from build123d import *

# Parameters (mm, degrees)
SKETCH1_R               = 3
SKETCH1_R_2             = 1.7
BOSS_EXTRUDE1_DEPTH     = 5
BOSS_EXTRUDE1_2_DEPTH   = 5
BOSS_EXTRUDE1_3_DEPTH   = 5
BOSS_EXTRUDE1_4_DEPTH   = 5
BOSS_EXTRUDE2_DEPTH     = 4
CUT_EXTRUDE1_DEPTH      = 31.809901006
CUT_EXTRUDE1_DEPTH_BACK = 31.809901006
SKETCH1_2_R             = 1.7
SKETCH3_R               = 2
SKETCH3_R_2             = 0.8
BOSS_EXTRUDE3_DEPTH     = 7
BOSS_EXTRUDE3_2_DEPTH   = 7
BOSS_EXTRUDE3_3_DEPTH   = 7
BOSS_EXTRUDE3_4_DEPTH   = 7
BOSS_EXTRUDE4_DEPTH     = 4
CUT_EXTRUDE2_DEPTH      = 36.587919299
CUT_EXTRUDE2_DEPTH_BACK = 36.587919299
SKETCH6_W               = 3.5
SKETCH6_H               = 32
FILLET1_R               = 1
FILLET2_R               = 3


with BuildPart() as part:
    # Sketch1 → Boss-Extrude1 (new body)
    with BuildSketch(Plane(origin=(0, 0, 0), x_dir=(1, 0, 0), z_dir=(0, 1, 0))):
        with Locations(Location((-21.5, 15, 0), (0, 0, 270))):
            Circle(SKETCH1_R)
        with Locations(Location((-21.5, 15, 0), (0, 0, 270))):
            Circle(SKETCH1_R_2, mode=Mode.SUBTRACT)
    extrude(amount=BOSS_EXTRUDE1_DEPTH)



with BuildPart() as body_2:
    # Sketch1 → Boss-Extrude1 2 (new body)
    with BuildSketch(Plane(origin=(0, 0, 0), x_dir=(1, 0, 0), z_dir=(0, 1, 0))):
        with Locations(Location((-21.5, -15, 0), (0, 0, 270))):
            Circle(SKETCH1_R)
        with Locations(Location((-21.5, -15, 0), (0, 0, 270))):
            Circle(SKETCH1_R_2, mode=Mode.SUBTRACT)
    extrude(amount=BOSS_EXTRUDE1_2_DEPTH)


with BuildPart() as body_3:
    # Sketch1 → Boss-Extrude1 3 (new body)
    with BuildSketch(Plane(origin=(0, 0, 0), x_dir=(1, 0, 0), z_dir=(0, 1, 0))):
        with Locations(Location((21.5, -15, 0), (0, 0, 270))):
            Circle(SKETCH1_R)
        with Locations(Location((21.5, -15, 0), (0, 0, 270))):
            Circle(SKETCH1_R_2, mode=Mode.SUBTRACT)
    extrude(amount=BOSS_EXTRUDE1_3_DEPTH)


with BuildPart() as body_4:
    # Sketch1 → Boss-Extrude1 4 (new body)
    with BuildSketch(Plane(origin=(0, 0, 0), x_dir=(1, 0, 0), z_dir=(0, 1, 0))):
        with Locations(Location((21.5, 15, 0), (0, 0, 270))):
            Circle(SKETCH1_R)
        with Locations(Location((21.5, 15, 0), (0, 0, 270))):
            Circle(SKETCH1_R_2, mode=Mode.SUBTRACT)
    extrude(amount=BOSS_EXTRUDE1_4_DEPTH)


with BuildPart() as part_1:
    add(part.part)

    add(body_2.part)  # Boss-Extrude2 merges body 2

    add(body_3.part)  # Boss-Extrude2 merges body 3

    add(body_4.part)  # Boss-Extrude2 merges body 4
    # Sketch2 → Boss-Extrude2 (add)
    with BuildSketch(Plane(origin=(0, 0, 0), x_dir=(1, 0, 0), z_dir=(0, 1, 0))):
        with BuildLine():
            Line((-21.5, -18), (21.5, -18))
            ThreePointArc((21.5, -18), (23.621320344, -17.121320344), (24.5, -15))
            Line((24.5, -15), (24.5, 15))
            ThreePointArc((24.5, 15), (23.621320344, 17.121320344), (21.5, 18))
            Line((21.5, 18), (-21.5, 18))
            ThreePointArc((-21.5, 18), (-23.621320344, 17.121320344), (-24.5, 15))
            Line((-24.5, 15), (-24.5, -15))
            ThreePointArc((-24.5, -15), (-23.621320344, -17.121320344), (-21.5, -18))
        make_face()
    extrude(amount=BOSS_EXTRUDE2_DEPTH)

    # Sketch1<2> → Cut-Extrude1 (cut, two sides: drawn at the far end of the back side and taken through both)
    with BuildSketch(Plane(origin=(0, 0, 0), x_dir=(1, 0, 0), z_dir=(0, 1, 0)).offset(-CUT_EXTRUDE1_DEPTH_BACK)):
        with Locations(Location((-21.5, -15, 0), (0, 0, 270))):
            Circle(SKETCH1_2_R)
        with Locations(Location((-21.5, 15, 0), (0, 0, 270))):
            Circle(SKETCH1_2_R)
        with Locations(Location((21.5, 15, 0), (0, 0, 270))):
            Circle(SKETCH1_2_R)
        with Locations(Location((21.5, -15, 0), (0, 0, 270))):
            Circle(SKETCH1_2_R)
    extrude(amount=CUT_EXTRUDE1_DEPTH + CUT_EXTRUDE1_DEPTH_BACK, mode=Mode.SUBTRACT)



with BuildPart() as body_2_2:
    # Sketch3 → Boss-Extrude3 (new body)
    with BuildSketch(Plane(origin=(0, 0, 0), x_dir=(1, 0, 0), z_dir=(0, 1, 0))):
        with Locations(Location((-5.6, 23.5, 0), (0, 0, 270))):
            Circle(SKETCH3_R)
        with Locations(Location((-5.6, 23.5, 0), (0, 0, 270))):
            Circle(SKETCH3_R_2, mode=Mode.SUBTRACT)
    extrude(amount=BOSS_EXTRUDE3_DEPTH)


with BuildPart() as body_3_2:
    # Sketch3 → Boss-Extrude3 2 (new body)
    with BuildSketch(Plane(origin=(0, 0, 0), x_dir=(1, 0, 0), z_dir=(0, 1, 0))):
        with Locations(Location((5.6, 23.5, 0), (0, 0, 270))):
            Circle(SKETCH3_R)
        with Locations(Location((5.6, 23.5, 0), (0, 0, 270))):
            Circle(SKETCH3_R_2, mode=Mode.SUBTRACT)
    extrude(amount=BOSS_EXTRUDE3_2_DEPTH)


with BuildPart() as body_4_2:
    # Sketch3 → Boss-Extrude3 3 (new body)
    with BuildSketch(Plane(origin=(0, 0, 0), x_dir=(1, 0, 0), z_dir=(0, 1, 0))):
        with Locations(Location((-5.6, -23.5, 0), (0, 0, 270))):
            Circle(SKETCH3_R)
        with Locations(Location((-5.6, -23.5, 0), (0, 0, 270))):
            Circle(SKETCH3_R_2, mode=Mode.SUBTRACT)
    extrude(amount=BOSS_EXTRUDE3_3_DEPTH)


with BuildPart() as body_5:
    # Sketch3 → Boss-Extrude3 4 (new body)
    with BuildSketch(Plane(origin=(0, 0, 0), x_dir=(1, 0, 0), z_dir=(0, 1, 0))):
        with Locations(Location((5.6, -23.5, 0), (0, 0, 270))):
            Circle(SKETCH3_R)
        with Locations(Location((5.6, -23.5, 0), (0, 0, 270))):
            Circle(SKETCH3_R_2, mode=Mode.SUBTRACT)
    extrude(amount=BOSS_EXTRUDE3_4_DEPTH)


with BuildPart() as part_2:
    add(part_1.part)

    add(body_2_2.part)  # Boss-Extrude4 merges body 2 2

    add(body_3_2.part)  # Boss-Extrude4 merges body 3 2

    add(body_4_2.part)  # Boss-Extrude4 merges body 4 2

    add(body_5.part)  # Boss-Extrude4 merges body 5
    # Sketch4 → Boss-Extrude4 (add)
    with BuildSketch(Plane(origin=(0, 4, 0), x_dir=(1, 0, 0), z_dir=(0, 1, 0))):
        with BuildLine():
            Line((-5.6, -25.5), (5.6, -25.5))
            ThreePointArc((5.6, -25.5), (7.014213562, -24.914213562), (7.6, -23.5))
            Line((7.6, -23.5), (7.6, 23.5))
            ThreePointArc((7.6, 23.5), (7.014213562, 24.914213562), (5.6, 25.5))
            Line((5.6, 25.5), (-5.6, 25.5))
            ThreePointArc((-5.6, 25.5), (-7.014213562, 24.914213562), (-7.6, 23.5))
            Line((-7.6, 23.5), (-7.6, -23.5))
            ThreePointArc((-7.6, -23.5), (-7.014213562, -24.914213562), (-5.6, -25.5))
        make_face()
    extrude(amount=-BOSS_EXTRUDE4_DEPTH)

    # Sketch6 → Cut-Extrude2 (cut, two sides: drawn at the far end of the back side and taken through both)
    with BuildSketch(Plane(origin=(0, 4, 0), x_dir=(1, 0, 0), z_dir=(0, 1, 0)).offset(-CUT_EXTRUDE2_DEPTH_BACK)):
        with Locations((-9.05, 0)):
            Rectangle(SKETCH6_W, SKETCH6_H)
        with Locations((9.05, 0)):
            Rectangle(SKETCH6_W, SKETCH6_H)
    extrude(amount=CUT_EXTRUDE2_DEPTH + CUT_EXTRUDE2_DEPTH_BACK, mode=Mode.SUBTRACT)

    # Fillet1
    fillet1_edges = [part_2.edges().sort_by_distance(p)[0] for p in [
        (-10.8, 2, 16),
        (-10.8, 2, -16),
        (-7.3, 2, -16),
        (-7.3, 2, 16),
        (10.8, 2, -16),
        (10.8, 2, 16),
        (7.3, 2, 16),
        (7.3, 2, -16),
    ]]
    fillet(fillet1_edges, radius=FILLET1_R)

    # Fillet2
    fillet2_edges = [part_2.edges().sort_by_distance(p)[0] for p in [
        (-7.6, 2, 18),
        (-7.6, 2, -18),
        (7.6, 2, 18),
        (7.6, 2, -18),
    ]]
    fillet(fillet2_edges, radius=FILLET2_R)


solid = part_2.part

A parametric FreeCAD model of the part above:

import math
import FreeCAD as App
import Part
import Sketcher
Q = App.Units.Quantity


def edges_at(feature, points):
    """Names of the edges that pass closest to the given points."""
    edges = feature.Shape.Edges
    near = lambda p: min(range(len(edges)), key=lambda i: edges[i].distToShape(Part.Vertex(*p))[0])
    return sorted({f"Edge{near(p) + 1}" for p in points})


def add_polygon(sketch, points):
    """Adds a closed chain of lines whose ends are joined by coincident constraints."""
    first, n = sketch.GeometryCount, len(points)
    for a, b in zip(points, points[1:] + points[:1]):
        sketch.addGeometry(Part.LineSegment(App.Vector(*a, 0), App.Vector(*b, 0)), False)
    for i in range(n):
        sketch.addConstraint(Sketcher.Constraint("Coincident", first + i, 2, first + (i + 1) % n, 1))

doc = App.newDocument("Part")
params = doc.addObject("Spreadsheet::Sheet", "Params")
for row, (alias, value) in enumerate([
    ("sketch1_diameter", "6 mm"),
    ("sketch1_diameter2", "3.4 mm"),
    ("pad1_length", "5 mm"),
    ("sketch2_diameter", "6 mm"),
    ("sketch2_diameter2", "3.4 mm"),
    ("pad2_length", "5 mm"),
    ("sketch3_diameter", "6 mm"),
    ("sketch3_diameter2", "3.4 mm"),
    ("pad3_length", "5 mm"),
    ("sketch4_diameter", "6 mm"),
    ("sketch4_diameter2", "3.4 mm"),
    ("pad4_length", "5 mm"),
    ("sketch5_radius", "3 mm"),
    ("sketch5_width", "43 mm"),
    ("sketch5_height", "30 mm"),
    ("pad5_length", "4 mm"),
    ("sketch6_diameter", "3.4 mm"),
    ("sketch7_diameter", "4 mm"),
    ("sketch7_diameter2", "1.6 mm"),
    ("pad6_length", "7 mm"),
    ("sketch8_diameter", "4 mm"),
    ("sketch8_diameter2", "1.6 mm"),
    ("pad7_length", "7 mm"),
    ("sketch9_diameter", "4 mm"),
    ("sketch9_diameter2", "1.6 mm"),
    ("pad8_length", "7 mm"),
    ("sketch10_diameter", "4 mm"),
    ("sketch10_diameter2", "1.6 mm"),
    ("pad9_length", "7 mm"),
    ("sketch11_radius", "2 mm"),
    ("sketch11_height", "47 mm"),
    ("sketch11_width", "11.2 mm"),
    ("pad10_length", "4 mm"),
    ("sketch12_height", "32 mm"),
    ("sketch12_width", "3.5 mm"),
    ("fillet_radius", "1 mm"),
    ("fillet2_radius", "3 mm"),
], start=1):
    params.set(f"A{row}", alias)
    params.set(f"B{row}", "=" + value)
    params.setAlias(f"B{row}", alias)

body = doc.addObject("PartDesign::Body", "Body")

sketch1 = body.newObject("Sketcher::SketchObject", "Sketch")
sketch1.AttachmentSupport = (doc.getObject("XZ_Plane"), [""])
sketch1.MapMode = "FlatFace"
sketch1.addGeometry([
    Part.Circle(App.Vector(-21.5, -15, 0), App.Vector(0, 0, 1), 3),
    Part.Circle(App.Vector(-21.5, -15, 0), App.Vector(0, 0, 1), 1.7),
], False)
sketch1.addConstraint([
    Sketcher.Constraint("Coincident", 1, 3, 0, 3),
    Sketcher.Constraint("Diameter", 0, Q("6 mm")),
    Sketcher.Constraint("Diameter", 1, Q("3.4 mm")),
    Sketcher.Constraint("DistanceY", 0, 3, -1, 1, Q("15 mm")),
    Sketcher.Constraint("DistanceX", 0, 3, -1, 1, Q("21.5 mm")),
])
sketch1.setExpression("Constraints[1]", "Params.sketch1_diameter")
sketch1.setExpression("Constraints[2]", "Params.sketch1_diameter2")
pad1 = body.newObject("PartDesign::Pad", "Pad")
pad1.Profile = sketch1
pad1.setExpression("Length", "Params.pad1_length")
pad1.Reversed = True
body2 = doc.addObject("PartDesign::Body", "Body001")

sketch2 = body2.newObject("Sketcher::SketchObject", "Sketch001")
sketch2.AttachmentSupport = (doc.getObject("XZ_Plane001"), [""])
sketch2.MapMode = "FlatFace"
sketch2.addGeometry([
    Part.Circle(App.Vector(-21.5, 15, 0), App.Vector(0, 0, 1), 3),
    Part.Circle(App.Vector(-21.5, 15, 0), App.Vector(0, 0, 1), 1.7),
], False)
sketch2.addConstraint([
    Sketcher.Constraint("Coincident", 1, 3, 0, 3),
    Sketcher.Constraint("Diameter", 0, Q("6 mm")),
    Sketcher.Constraint("Diameter", 1, Q("3.4 mm")),
    Sketcher.Constraint("DistanceY", -1, 1, 0, 3, Q("15 mm")),
    Sketcher.Constraint("DistanceX", 0, 3, -1, 1, Q("21.5 mm")),
])
sketch2.setExpression("Constraints[1]", "Params.sketch2_diameter")
sketch2.setExpression("Constraints[2]", "Params.sketch2_diameter2")
pad2 = body2.newObject("PartDesign::Pad", "Pad001")
pad2.Profile = sketch2
pad2.setExpression("Length", "Params.pad2_length")
pad2.Reversed = True
body3 = doc.addObject("PartDesign::Body", "Body002")

sketch3 = body3.newObject("Sketcher::SketchObject", "Sketch002")
sketch3.AttachmentSupport = (doc.getObject("XZ_Plane002"), [""])
sketch3.MapMode = "FlatFace"
sketch3.addGeometry([
    Part.Circle(App.Vector(21.5, 15, 0), App.Vector(0, 0, 1), 3),
    Part.Circle(App.Vector(21.5, 15, 0), App.Vector(0, 0, 1), 1.7),
], False)
sketch3.addConstraint([
    Sketcher.Constraint("Coincident", 1, 3, 0, 3),
    Sketcher.Constraint("Diameter", 0, Q("6 mm")),
    Sketcher.Constraint("Diameter", 1, Q("3.4 mm")),
    Sketcher.Constraint("DistanceY", -1, 1, 0, 3, Q("15 mm")),
    Sketcher.Constraint("DistanceX", -1, 1, 0, 3, Q("21.5 mm")),
])
sketch3.setExpression("Constraints[1]", "Params.sketch3_diameter")
sketch3.setExpression("Constraints[2]", "Params.sketch3_diameter2")
pad3 = body3.newObject("PartDesign::Pad", "Pad002")
pad3.Profile = sketch3
pad3.setExpression("Length", "Params.pad3_length")
pad3.Reversed = True
body4 = doc.addObject("PartDesign::Body", "Body003")

sketch4 = body4.newObject("Sketcher::SketchObject", "Sketch003")
sketch4.AttachmentSupport = (doc.getObject("XZ_Plane003"), [""])
sketch4.MapMode = "FlatFace"
sketch4.addGeometry([
    Part.Circle(App.Vector(21.5, -15, 0), App.Vector(0, 0, 1), 3),
    Part.Circle(App.Vector(21.5, -15, 0), App.Vector(0, 0, 1), 1.7),
], False)
sketch4.addConstraint([
    Sketcher.Constraint("Coincident", 1, 3, 0, 3),
    Sketcher.Constraint("Diameter", 0, Q("6 mm")),
    Sketcher.Constraint("Diameter", 1, Q("3.4 mm")),
    Sketcher.Constraint("DistanceY", 0, 3, -1, 1, Q("15 mm")),
    Sketcher.Constraint("DistanceX", -1, 1, 0, 3, Q("21.5 mm")),
])
sketch4.setExpression("Constraints[1]", "Params.sketch4_diameter")
sketch4.setExpression("Constraints[2]", "Params.sketch4_diameter2")
pad4 = body4.newObject("PartDesign::Pad", "Pad003")
pad4.Profile = sketch4
pad4.setExpression("Length", "Params.pad4_length")
pad4.Reversed = True
body.AllowCompound = True
doc.recompute()

boolean = body.newObject("PartDesign::Boolean", "Boolean")
boolean.Type = "Fuse"
boolean.addObjects([body2])
doc.recompute()

boolean2 = body.newObject("PartDesign::Boolean", "Boolean001")
boolean2.Type = "Fuse"
boolean2.addObjects([body3])
doc.recompute()

boolean3 = body.newObject("PartDesign::Boolean", "Boolean002")
boolean3.Type = "Fuse"
boolean3.addObjects([body4])

sketch5 = body.newObject("Sketcher::SketchObject", "Sketch004")
sketch5.AttachmentSupport = (doc.getObject("XZ_Plane"), [""])
sketch5.MapMode = "FlatFace"
sketch5.addGeometry([
    Part.LineSegment(App.Vector(-21.5, 18, 0), App.Vector(21.5, 18, 0)),
    Part.ArcOfCircle(Part.Circle(App.Vector(21.5, 15, 0), App.Vector(0, 0, 1), 3), math.radians(0), math.radians(90)),
    Part.LineSegment(App.Vector(24.5, 15, 0), App.Vector(24.5, -15, 0)),
    Part.ArcOfCircle(Part.Circle(App.Vector(21.5, -15, 0), App.Vector(0, 0, 1), 3), math.radians(-90), math.radians(0)),
    Part.LineSegment(App.Vector(21.5, -18, 0), App.Vector(-21.5, -18, 0)),
    Part.ArcOfCircle(Part.Circle(App.Vector(-21.5, -15, 0), App.Vector(0, 0, 1), 3), math.radians(180), math.radians(270)),
    Part.LineSegment(App.Vector(-24.5, -15, 0), App.Vector(-24.5, 15, 0)),
    Part.ArcOfCircle(Part.Circle(App.Vector(-21.5, 15, 0), App.Vector(0, 0, 1), 3), math.radians(90), math.radians(180)),
], False)
sketch5.addConstraint([
    Sketcher.Constraint("Tangent", 0, 2, 1, 2),
    Sketcher.Constraint("Tangent", 1, 1, 2, 1),
    Sketcher.Constraint("Tangent", 2, 2, 3, 2),
    Sketcher.Constraint("Tangent", 3, 1, 4, 1),
    Sketcher.Constraint("Tangent", 4, 2, 5, 2),
    Sketcher.Constraint("Tangent", 5, 1, 6, 1),
    Sketcher.Constraint("Tangent", 6, 2, 7, 2),
    Sketcher.Constraint("Tangent", 7, 1, 0, 1),
    Sketcher.Constraint("Horizontal", 0),
    Sketcher.Constraint("Vertical", 2),
    Sketcher.Constraint("Horizontal", 4),
    Sketcher.Constraint("Vertical", 6),
    Sketcher.Constraint("Equal", 1, 3),
    Sketcher.Constraint("Equal", 3, 5),
    Sketcher.Constraint("Equal", 5, 7),
    Sketcher.Constraint("Symmetric", 1, 3, 5, 3, -1, 1),
    Sketcher.Constraint("Radius", 1, Q("3 mm")),
    Sketcher.Constraint("DistanceX", 0, 1, 0, 2, Q("43 mm")),
    Sketcher.Constraint("DistanceY", 2, 2, 2, 1, Q("30 mm")),
])
sketch5.setExpression("Constraints[16]", "Params.sketch5_radius")
sketch5.setExpression("Constraints[17]", "Params.sketch5_width")
sketch5.setExpression("Constraints[18]", "Params.sketch5_height")
pad5 = body.newObject("PartDesign::Pad", "Pad004")
pad5.Profile = sketch5
pad5.setExpression("Length", "Params.pad5_length")
pad5.Reversed = True

sketch6 = body.newObject("Sketcher::SketchObject", "Sketch005")
sketch6.AttachmentSupport = (doc.getObject("XZ_Plane"), [""])
sketch6.MapMode = "FlatFace"
sketch6.addGeometry([
    Part.Circle(App.Vector(-21.5, 15, 0), App.Vector(0, 0, 1), 1.7),
    Part.Circle(App.Vector(-21.5, -15, 0), App.Vector(0, 0, 1), 1.7),
    Part.Circle(App.Vector(21.5, -15, 0), App.Vector(0, 0, 1), 1.7),
    Part.Circle(App.Vector(21.5, 15, 0), App.Vector(0, 0, 1), 1.7),
], False)
sketch6.addConstraint([
    Sketcher.Constraint("Equal", 0, 1),
    Sketcher.Constraint("Equal", 1, 2),
    Sketcher.Constraint("Equal", 2, 3),
    Sketcher.Constraint("Symmetric", 0, 3, 2, 3, -1, 1),
    Sketcher.Constraint("Symmetric", 1, 3, 3, 3, -1, 1),
    Sketcher.Constraint("Symmetric", 1, 3, 2, 3, -2),
    Sketcher.Constraint("Diameter", 0, Q("3.4 mm")),
    Sketcher.Constraint("DistanceY", -1, 1, 0, 3, Q("15 mm")),
    Sketcher.Constraint("DistanceX", 1, 3, 2, 3, Q("43 mm")),
])
sketch6.setExpression("Constraints[6]", "Params.sketch6_diameter")
pocket1 = body.newObject("PartDesign::Pocket", "Pocket")
pocket1.Profile = sketch6
pocket1.Type = "ThroughAll"
pocket1.Midplane = True
body5 = doc.addObject("PartDesign::Body", "Body004")

sketch7 = body5.newObject("Sketcher::SketchObject", "Sketch006")
sketch7.AttachmentSupport = (doc.getObject("XZ_Plane004"), [""])
sketch7.MapMode = "FlatFace"
sketch7.addGeometry([
    Part.Circle(App.Vector(-5.6, -23.5, 0), App.Vector(0, 0, 1), 2),
    Part.Circle(App.Vector(-5.6, -23.5, 0), App.Vector(0, 0, 1), 0.8),
], False)
sketch7.addConstraint([
    Sketcher.Constraint("Coincident", 1, 3, 0, 3),
    Sketcher.Constraint("Diameter", 0, Q("4 mm")),
    Sketcher.Constraint("Diameter", 1, Q("1.6 mm")),
    Sketcher.Constraint("DistanceX", 0, 3, -1, 1, Q("5.6 mm")),
    Sketcher.Constraint("DistanceY", 0, 3, -1, 1, Q("23.5 mm")),
])
sketch7.setExpression("Constraints[1]", "Params.sketch7_diameter")
sketch7.setExpression("Constraints[2]", "Params.sketch7_diameter2")
pad6 = body5.newObject("PartDesign::Pad", "Pad005")
pad6.Profile = sketch7
pad6.setExpression("Length", "Params.pad6_length")
pad6.Reversed = True
body6 = doc.addObject("PartDesign::Body", "Body005")

sketch8 = body6.newObject("Sketcher::SketchObject", "Sketch007")
sketch8.AttachmentSupport = (doc.getObject("XZ_Plane005"), [""])
sketch8.MapMode = "FlatFace"
sketch8.addGeometry([
    Part.Circle(App.Vector(5.6, -23.5, 0), App.Vector(0, 0, 1), 2),
    Part.Circle(App.Vector(5.6, -23.5, 0), App.Vector(0, 0, 1), 0.8),
], False)
sketch8.addConstraint([
    Sketcher.Constraint("Coincident", 1, 3, 0, 3),
    Sketcher.Constraint("Diameter", 0, Q("4 mm")),
    Sketcher.Constraint("Diameter", 1, Q("1.6 mm")),
    Sketcher.Constraint("DistanceX", -1, 1, 0, 3, Q("5.6 mm")),
    Sketcher.Constraint("DistanceY", 0, 3, -1, 1, Q("23.5 mm")),
])
sketch8.setExpression("Constraints[1]", "Params.sketch8_diameter")
sketch8.setExpression("Constraints[2]", "Params.sketch8_diameter2")
pad7 = body6.newObject("PartDesign::Pad", "Pad006")
pad7.Profile = sketch8
pad7.setExpression("Length", "Params.pad7_length")
pad7.Reversed = True
body7 = doc.addObject("PartDesign::Body", "Body006")

sketch9 = body7.newObject("Sketcher::SketchObject", "Sketch008")
sketch9.AttachmentSupport = (doc.getObject("XZ_Plane006"), [""])
sketch9.MapMode = "FlatFace"
sketch9.addGeometry([
    Part.Circle(App.Vector(-5.6, 23.5, 0), App.Vector(0, 0, 1), 2),
    Part.Circle(App.Vector(-5.6, 23.5, 0), App.Vector(0, 0, 1), 0.8),
], False)
sketch9.addConstraint([
    Sketcher.Constraint("Coincident", 1, 3, 0, 3),
    Sketcher.Constraint("Diameter", 0, Q("4 mm")),
    Sketcher.Constraint("Diameter", 1, Q("1.6 mm")),
    Sketcher.Constraint("DistanceX", 0, 3, -1, 1, Q("5.6 mm")),
    Sketcher.Constraint("DistanceY", -1, 1, 0, 3, Q("23.5 mm")),
])
sketch9.setExpression("Constraints[1]", "Params.sketch9_diameter")
sketch9.setExpression("Constraints[2]", "Params.sketch9_diameter2")
pad8 = body7.newObject("PartDesign::Pad", "Pad007")
pad8.Profile = sketch9
pad8.setExpression("Length", "Params.pad8_length")
pad8.Reversed = True
body8 = doc.addObject("PartDesign::Body", "Body007")

sketch10 = body8.newObject("Sketcher::SketchObject", "Sketch009")
sketch10.AttachmentSupport = (doc.getObject("XZ_Plane007"), [""])
sketch10.MapMode = "FlatFace"
sketch10.addGeometry([
    Part.Circle(App.Vector(5.6, 23.5, 0), App.Vector(0, 0, 1), 2),
    Part.Circle(App.Vector(5.6, 23.5, 0), App.Vector(0, 0, 1), 0.8),
], False)
sketch10.addConstraint([
    Sketcher.Constraint("Coincident", 1, 3, 0, 3),
    Sketcher.Constraint("Diameter", 0, Q("4 mm")),
    Sketcher.Constraint("Diameter", 1, Q("1.6 mm")),
    Sketcher.Constraint("DistanceX", -1, 1, 0, 3, Q("5.6 mm")),
    Sketcher.Constraint("DistanceY", -1, 1, 0, 3, Q("23.5 mm")),
])
sketch10.setExpression("Constraints[1]", "Params.sketch10_diameter")
sketch10.setExpression("Constraints[2]", "Params.sketch10_diameter2")
pad9 = body8.newObject("PartDesign::Pad", "Pad008")
pad9.Profile = sketch10
pad9.setExpression("Length", "Params.pad9_length")
pad9.Reversed = True
body.AllowCompound = True
doc.recompute()

boolean4 = body.newObject("PartDesign::Boolean", "Boolean003")
boolean4.Type = "Fuse"
boolean4.addObjects([body5])
doc.recompute()

boolean5 = body.newObject("PartDesign::Boolean", "Boolean004")
boolean5.Type = "Fuse"
boolean5.addObjects([body6])
doc.recompute()

boolean6 = body.newObject("PartDesign::Boolean", "Boolean005")
boolean6.Type = "Fuse"
boolean6.addObjects([body7])
doc.recompute()

boolean7 = body.newObject("PartDesign::Boolean", "Boolean006")
boolean7.Type = "Fuse"
boolean7.addObjects([body8])

sketch11 = body.newObject("Sketcher::SketchObject", "Sketch010")
sketch11.AttachmentSupport = (doc.getObject("XZ_Plane"), [""])
sketch11.MapMode = "FlatFace"
sketch11.AttachmentOffset = App.Placement(App.Vector(0, 0, -4), App.Rotation())
sketch11.addGeometry([
    Part.LineSegment(App.Vector(-5.6, 25.5, 0), App.Vector(5.6, 25.5, 0)),
    Part.ArcOfCircle(Part.Circle(App.Vector(5.6, 23.5, 0), App.Vector(0, 0, 1), 2), math.radians(0), math.radians(90)),
    Part.LineSegment(App.Vector(7.6, 23.5, 0), App.Vector(7.6, -23.5, 0)),
    Part.ArcOfCircle(Part.Circle(App.Vector(5.6, -23.5, 0), App.Vector(0, 0, 1), 2), math.radians(-90), math.radians(0)),
    Part.LineSegment(App.Vector(5.6, -25.5, 0), App.Vector(-5.6, -25.5, 0)),
    Part.ArcOfCircle(Part.Circle(App.Vector(-5.6, -23.5, 0), App.Vector(0, 0, 1), 2), math.radians(-180), math.radians(-90)),
    Part.LineSegment(App.Vector(-7.6, -23.5, 0), App.Vector(-7.6, 23.5, 0)),
    Part.ArcOfCircle(Part.Circle(App.Vector(-5.6, 23.5, 0), App.Vector(0, 0, 1), 2), math.radians(90), math.radians(180)),
], False)
sketch11.addConstraint([
    Sketcher.Constraint("Tangent", 0, 2, 1, 2),
    Sketcher.Constraint("Tangent", 1, 1, 2, 1),
    Sketcher.Constraint("Tangent", 2, 2, 3, 2),
    Sketcher.Constraint("Tangent", 3, 1, 4, 1),
    Sketcher.Constraint("Tangent", 4, 2, 5, 2),
    Sketcher.Constraint("Tangent", 5, 1, 6, 1),
    Sketcher.Constraint("Tangent", 6, 2, 7, 2),
    Sketcher.Constraint("Tangent", 7, 1, 0, 1),
    Sketcher.Constraint("Horizontal", 0),
    Sketcher.Constraint("Vertical", 2),
    Sketcher.Constraint("Horizontal", 4),
    Sketcher.Constraint("Vertical", 6),
    Sketcher.Constraint("Equal", 1, 3),
    Sketcher.Constraint("Equal", 3, 5),
    Sketcher.Constraint("Equal", 5, 7),
    Sketcher.Constraint("Symmetric", 1, 3, 5, 3, -1, 1),
    Sketcher.Constraint("Radius", 1, Q("2 mm")),
    Sketcher.Constraint("DistanceY", 2, 2, 2, 1, Q("47 mm")),
    Sketcher.Constraint("DistanceX", 0, 1, 0, 2, Q("11.2 mm")),
])
sketch11.setExpression("Constraints[16]", "Params.sketch11_radius")
sketch11.setExpression("Constraints[17]", "Params.sketch11_height")
sketch11.setExpression("Constraints[18]", "Params.sketch11_width")
pad10 = body.newObject("PartDesign::Pad", "Pad009")
pad10.Profile = sketch11
pad10.setExpression("Length", "Params.pad10_length")

sketch12 = body.newObject("Sketcher::SketchObject", "Sketch011")
sketch12.AttachmentSupport = (doc.getObject("XZ_Plane"), [""])
sketch12.MapMode = "FlatFace"
sketch12.AttachmentOffset = App.Placement(App.Vector(0, 0, -4), App.Rotation())
add_polygon(sketch12, [(-10.8, -16), (-10.8, 16), (-7.3, 16), (-7.3, -16)])
add_polygon(sketch12, [(7.3, -16), (7.3, 16), (10.8, 16), (10.8, -16)])
sketch12.addConstraint([
    Sketcher.Constraint("Vertical", 0),
    Sketcher.Constraint("Horizontal", 1),
    Sketcher.Constraint("Vertical", 2),
    Sketcher.Constraint("Horizontal", 3),
    Sketcher.Constraint("Vertical", 4),
    Sketcher.Constraint("Horizontal", 5),
    Sketcher.Constraint("Vertical", 6),
    Sketcher.Constraint("Horizontal", 7),
    Sketcher.Constraint("Symmetric", 2, 2, 4, 2, -1, 1),
    Sketcher.Constraint("Symmetric", 0, 2, 6, 2, -1, 1),
    Sketcher.Constraint("Horizontal", 1, 2, 4, 2),
    Sketcher.Constraint("DistanceY", 0, 1, 0, 2, Q("32 mm")),
    Sketcher.Constraint("DistanceX", 1, 1, 1, 2, Q("3.5 mm")),
    Sketcher.Constraint("DistanceX", 0, 2, -1, 1, Q("10.8 mm")),
])
sketch12.setExpression("Constraints[19]", "Params.sketch12_height")
sketch12.setExpression("Constraints[20]", "Params.sketch12_width")
pocket2 = body.newObject("PartDesign::Pocket", "Pocket001")
pocket2.Profile = sketch12
pocket2.Type = "ThroughAll"
pocket2.Midplane = True
doc.recompute()

fillet = body.newObject("PartDesign::Fillet", "Fillet")
fillet.Base = (pocket2, edges_at(pocket2, [
    (-10.8, 2, 16),
    (-10.8, 2, -16),
    (-7.3, 2, -16),
    (-7.3, 2, 16),
    (10.8, 2, -16),
    (10.8, 2, 16),
    (7.3, 2, 16),
    (7.3, 2, -16),
]))
fillet.setExpression("Radius", "Params.fillet_radius")
doc.recompute()

fillet2 = body.newObject("PartDesign::Fillet", "Fillet001")
fillet2.Base = (fillet, edges_at(fillet, [
    (-7.6, 2, 18),
    (-7.6, 2, -18),
    (7.6, 2, 18),
    (7.6, 2, -18),
]))
fillet2.setExpression("Radius", "Params.fillet2_radius")

doc.recompute()
